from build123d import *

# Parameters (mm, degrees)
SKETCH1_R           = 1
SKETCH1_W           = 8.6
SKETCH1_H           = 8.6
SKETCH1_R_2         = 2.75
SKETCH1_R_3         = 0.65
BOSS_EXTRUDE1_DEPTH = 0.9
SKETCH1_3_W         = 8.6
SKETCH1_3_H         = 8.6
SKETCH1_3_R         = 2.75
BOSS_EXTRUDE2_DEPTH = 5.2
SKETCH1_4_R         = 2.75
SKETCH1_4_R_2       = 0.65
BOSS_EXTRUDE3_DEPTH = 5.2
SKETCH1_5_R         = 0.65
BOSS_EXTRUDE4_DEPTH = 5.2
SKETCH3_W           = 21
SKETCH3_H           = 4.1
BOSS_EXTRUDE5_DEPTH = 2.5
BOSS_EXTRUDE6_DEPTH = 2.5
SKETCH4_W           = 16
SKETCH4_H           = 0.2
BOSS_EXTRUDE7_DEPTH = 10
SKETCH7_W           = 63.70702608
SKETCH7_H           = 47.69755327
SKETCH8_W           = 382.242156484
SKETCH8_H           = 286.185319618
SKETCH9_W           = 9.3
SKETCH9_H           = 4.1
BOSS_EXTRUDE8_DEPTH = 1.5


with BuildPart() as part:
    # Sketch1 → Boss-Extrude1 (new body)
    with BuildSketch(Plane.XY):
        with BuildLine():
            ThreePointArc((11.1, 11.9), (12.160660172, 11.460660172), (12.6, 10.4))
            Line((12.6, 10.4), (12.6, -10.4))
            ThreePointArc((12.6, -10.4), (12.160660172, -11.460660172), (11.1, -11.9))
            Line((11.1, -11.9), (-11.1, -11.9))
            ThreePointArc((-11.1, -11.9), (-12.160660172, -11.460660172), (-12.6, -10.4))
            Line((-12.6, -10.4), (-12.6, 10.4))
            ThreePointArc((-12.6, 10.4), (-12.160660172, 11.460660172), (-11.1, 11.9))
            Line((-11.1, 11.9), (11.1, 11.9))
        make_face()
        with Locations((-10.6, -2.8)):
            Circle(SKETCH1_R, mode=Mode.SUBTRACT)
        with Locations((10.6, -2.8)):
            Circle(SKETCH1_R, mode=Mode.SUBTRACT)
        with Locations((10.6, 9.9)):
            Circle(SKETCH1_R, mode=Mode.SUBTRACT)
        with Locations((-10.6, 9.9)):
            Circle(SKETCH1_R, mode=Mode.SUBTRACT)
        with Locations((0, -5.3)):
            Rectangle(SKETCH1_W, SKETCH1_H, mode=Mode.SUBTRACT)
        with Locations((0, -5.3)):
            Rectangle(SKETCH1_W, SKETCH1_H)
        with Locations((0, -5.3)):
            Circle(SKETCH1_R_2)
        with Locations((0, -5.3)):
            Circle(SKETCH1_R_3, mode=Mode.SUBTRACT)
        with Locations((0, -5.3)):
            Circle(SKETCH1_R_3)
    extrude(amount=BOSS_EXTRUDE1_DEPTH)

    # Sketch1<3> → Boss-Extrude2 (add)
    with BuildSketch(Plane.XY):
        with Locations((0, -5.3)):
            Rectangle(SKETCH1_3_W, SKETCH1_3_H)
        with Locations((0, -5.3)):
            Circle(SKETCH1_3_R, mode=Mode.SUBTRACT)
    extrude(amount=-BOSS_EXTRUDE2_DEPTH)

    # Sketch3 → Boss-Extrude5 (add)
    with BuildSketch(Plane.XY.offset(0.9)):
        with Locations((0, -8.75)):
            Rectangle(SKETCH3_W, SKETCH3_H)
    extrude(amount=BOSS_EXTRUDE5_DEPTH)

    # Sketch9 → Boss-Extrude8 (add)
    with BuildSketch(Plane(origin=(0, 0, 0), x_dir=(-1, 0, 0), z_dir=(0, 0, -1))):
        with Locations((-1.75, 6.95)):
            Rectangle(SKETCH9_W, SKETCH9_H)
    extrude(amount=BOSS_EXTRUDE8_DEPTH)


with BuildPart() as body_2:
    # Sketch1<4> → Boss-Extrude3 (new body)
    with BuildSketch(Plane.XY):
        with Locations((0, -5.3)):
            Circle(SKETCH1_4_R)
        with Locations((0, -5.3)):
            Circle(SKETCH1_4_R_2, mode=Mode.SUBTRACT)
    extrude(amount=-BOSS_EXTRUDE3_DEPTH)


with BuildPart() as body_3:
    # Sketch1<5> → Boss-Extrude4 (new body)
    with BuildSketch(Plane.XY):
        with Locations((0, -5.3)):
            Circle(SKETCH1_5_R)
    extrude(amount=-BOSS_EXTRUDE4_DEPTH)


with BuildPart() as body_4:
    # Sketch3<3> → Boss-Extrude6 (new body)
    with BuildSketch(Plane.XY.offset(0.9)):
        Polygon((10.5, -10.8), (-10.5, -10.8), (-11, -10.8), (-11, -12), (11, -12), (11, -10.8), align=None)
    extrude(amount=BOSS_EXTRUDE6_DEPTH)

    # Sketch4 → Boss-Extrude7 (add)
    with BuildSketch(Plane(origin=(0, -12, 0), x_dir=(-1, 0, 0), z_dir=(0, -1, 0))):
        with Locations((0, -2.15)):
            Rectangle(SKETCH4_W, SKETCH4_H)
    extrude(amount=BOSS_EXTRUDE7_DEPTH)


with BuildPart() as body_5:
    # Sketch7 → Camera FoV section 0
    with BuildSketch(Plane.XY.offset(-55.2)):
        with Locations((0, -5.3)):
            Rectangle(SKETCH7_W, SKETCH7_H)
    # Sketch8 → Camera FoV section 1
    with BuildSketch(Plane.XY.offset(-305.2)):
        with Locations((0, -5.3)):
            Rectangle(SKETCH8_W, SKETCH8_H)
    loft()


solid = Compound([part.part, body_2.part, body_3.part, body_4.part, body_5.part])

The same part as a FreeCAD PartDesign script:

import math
import FreeCAD as App
import Part
import Sketcher
Q = App.Units.Quantity


def add_polygon(sketch, points):
    """Adds a closed chain of lines whose ends are joined by coincident constraints."""
    first, n = sketch.GeometryCount, len(points)
    for a, b in zip(points, points[1:] + points[:1]):
        sketch.addGeometry(Part.LineSegment(App.Vector(*a, 0), App.Vector(*b, 0)), False)
    for i in range(n):
        sketch.addConstraint(Sketcher.Constraint("Coincident", first + i, 2, first + (i + 1) % n, 1))

doc = App.newDocument("Part")
params = doc.addObject("Spreadsheet::Sheet", "Params")
for row, (alias, value) in enumerate([
    ("sketch1_diameter", "2 mm"),
    ("sketch1_radius", "1.5 mm"),
    ("sketch1_width", "22.2 mm"),
    ("sketch1_height", "20.8 mm"),
    ("pad1_length", "0.9 mm"),
    ("sketch2_diameter", "5.5 mm"),
    ("sketch2_width", "8.6 mm"),
    ("pad2_length", "5.2 mm"),
    ("sketch3_width", "21 mm"),
    ("sketch3_height", "4.1 mm"),
    ("pad3_length", "2.5 mm"),
    ("sketch4_width", "9.3 mm"),
    ("sketch4_height", "4.1 mm"),
    ("pad4_length", "1.5 mm"),
    ("sketch5_diameter", "5.5 mm"),
    ("sketch5_diameter2", "1.3 mm"),
    ("pad5_length", "5.2 mm"),
    ("sketch6_diameter", "1.3 mm"),
    ("pad6_length", "5.2 mm"),
    ("sketch7_width", "22 mm"),
    ("sketch7_height", "1.2 mm"),
    ("pad7_length", "2.5 mm"),
    ("sketch8_width", "16 mm"),
    ("sketch8_height", "0.2 mm"),
    ("pad8_length", "10 mm"),
], start=1):
    params.set(f"A{row}", alias)
    params.set(f"B{row}", "=" + value)
    params.setAlias(f"B{row}", alias)

body = doc.addObject("PartDesign::Body", "Body")

# Sketch on XY plane
sketch1 = body.newObject("Sketcher::SketchObject", "Sketch")
sketch1.AttachmentSupport = (doc.getObject("XY_Plane"), [""])
sketch1.MapMode = "FlatFace"
sketch1.addGeometry([
    Part.ArcOfCircle(Part.Circle(App.Vector(11.1, 10.4, 0), App.Vector(0, 0, 1), 1.5), math.radians(0), math.radians(90)),  # 0
    Part.LineSegment(App.Vector(11.1, 11.9, 0), App.Vector(-11.1, 11.9, 0)),  # 1
    Part.ArcOfCircle(Part.Circle(App.Vector(-11.1, 10.4, 0), App.Vector(0, 0, 1), 1.5), math.radians(90), math.radians(180)),  # 2
    Part.LineSegment(App.Vector(-12.6, 10.4, 0), App.Vector(-12.6, -10.4, 0)),  # 3
    Part.ArcOfCircle(Part.Circle(App.Vector(-11.1, -10.4, 0), App.Vector(0, 0, 1), 1.5), math.radians(180), math.radians(270)),  # 4
    Part.LineSegment(App.Vector(-11.1, -11.9, 0), App.Vector(11.1, -11.9, 0)),  # 5
    Part.ArcOfCircle(Part.Circle(App.Vector(11.1, -10.4, 0), App.Vector(0, 0, 1), 1.5), math.radians(-90), math.radians(0)),  # 6
    Part.LineSegment(App.Vector(12.6, -10.4, 0), App.Vector(12.6, 10.4, 0)),  # 7
    Part.Circle(App.Vector(10.6, -2.8, 0), App.Vector(0, 0, 1), 1),  # 8
    Part.Circle(App.Vector(-10.6, -2.8, 0), App.Vector(0, 0, 1), 1),  # 9
    Part.Circle(App.Vector(10.6, 9.9, 0), App.Vector(0, 0, 1), 1),  # 10
    Part.Circle(App.Vector(-10.6, 9.9, 0), App.Vector(0, 0, 1), 1),  # 11
], False)
sketch1.addConstraint([
    Sketcher.Constraint("Tangent", 0, 2, 1, 1),
    Sketcher.Constraint("Tangent", 1, 2, 2, 1),
    Sketcher.Constraint("Tangent", 2, 2, 3, 1),
    Sketcher.Constraint("Tangent", 3, 2, 4, 1),
    Sketcher.Constraint("Tangent", 4, 2, 5, 1),
    Sketcher.Constraint("Tangent", 5, 2, 6, 1),
    Sketcher.Constraint("Tangent", 6, 2, 7, 1),
    Sketcher.Constraint("Tangent", 7, 2, 0, 1),
    Sketcher.Constraint("Horizontal", 1),
    Sketcher.Constraint("Vertical", 3),
    Sketcher.Constraint("Horizontal", 5),
    Sketcher.Constraint("Vertical", 7),
    Sketcher.Constraint("Equal", 0, 2),
    Sketcher.Constraint("Equal", 2, 4),
    Sketcher.Constraint("Equal", 4, 6),
    Sketcher.Constraint("Equal", 8, 9),
    Sketcher.Constraint("Equal", 9, 10),
    Sketcher.Constraint("Equal", 10, 11),
    Sketcher.Constraint("Symmetric", 0, 3, 4, 3, -1, 1),
    Sketcher.Constraint("Symmetric", 8, 3, 9, 3, -2),
    Sketcher.Constraint("Symmetric", 10, 3, 11, 3, -2),
    Sketcher.Constraint("Vertical", 8, 3, 10, 3),
    Sketcher.Constraint("Diameter", 8, Q("2 mm")),
    Sketcher.Constraint("Radius", 0, Q("1.5 mm")),
    Sketcher.Constraint("DistanceX", 1, 2, 1, 1, Q("22.2 mm")),
    Sketcher.Constraint("DistanceY", 3, 2, 3, 1, Q("20.8 mm")),
    Sketcher.Constraint("DistanceY", 10, 3, 0, 2, Q("2 mm")),
    Sketcher.Constraint("DistanceX", 2, 2, 11, 3, Q("2 mm")),
    Sketcher.Constraint("DistanceY", 8, 3, -1, 1, Q("2.8 mm")),
])
sketch1.setExpression("Constraints[22]", "Params.sketch1_diameter")
sketch1.setExpression("Constraints[23]", "Params.sketch1_radius")
sketch1.setExpression("Constraints[24]", "Params.sketch1_width")
sketch1.setExpression("Constraints[25]", "Params.sketch1_height")
pad1 = body.newObject("PartDesign::Pad", "Pad")
pad1.Profile = sketch1
pad1.setExpression("Length", "Params.pad1_length")

# Sketch on XY plane
sketch2 = body.newObject("Sketcher::SketchObject", "Sketch001")
sketch2.AttachmentSupport = (doc.getObject("XY_Plane"), [""])
sketch2.MapMode = "FlatFace"
add_polygon(sketch2, [(-4.3, -1), (-4.3, -9.6), (4.3, -9.6), (4.3, -1)])  # lines 0-3
sketch2.addGeometry(Part.Circle(App.Vector(0, -5.3, 0), App.Vector(0, 0, 1), 2.8), False)  # 4
sketch2.addConstraint([
    Sketcher.Constraint("Vertical", 0),
    Sketcher.Constraint("Horizontal", 1),
    Sketcher.Constraint("Vertical", 2),
    Sketcher.Constraint("Horizontal", 3),
    Sketcher.Constraint("PointOnObject", 4, 3, -2),
    Sketcher.Constraint("Equal", 3, 0),
    Sketcher.Constraint("Diameter", 4, Q("5.5 mm")),
    Sketcher.Constraint("DistanceX", 1, 1, 1, 2, Q("8.6 mm")),
    Sketcher.Constraint("DistanceY", 2, 2, -1, 1, Q("1 mm")),
    Sketcher.Constraint("DistanceY", 4, 3, -1, 1, Q("5.3 mm")),
    Sketcher.Constraint("DistanceX", 0, 2, -1, 1, Q("4.3 mm")),
])
sketch2.setExpression("Constraints[10]", "Params.sketch2_diameter")
sketch2.setExpression("Constraints[11]", "Params.sketch2_width")
pad2 = body.newObject("PartDesign::Pad", "Pad001")
pad2.Profile = sketch2
pad2.setExpression("Length", "Params.pad2_length")
pad2.Reversed = True

# Sketch on XY plane
sketch3 = body.newObject("Sketcher::SketchObject", "Sketch002")
sketch3.AttachmentSupport = (doc.getObject("XY_Plane"), [""])
sketch3.MapMode = "FlatFace"
sketch3.AttachmentOffset = App.Placement(App.Vector(0, 0, 0.9), App.Rotation())
add_polygon(sketch3, [(-10.5, -6.7), (-10.5, -10.8), (10.5, -10.8), (10.5, -6.7)])  # lines 0-3
sketch3.addConstraint([
    Sketcher.Constraint("Vertical", 0),
    Sketcher.Constraint("Horizontal", 1),
    Sketcher.Constraint("Vertical", 2),
    Sketcher.Constraint("Horizontal", 3),
    Sketcher.Constraint("DistanceX", 1, 1, 1, 2, Q("21 mm")),
    Sketcher.Constraint("DistanceY", 0, 2, 0, 1, Q("4.1 mm")),
    Sketcher.Constraint("DistanceX", 0, 2, -1, 1, Q("10.5 mm")),
    Sketcher.Constraint("DistanceY", 0, 2, -1, 1, Q("10.8 mm")),
])
sketch3.setExpression("Constraints[8]", "Params.sketch3_width")
sketch3.setExpression("Constraints[9]", "Params.sketch3_height")
pad3 = body.newObject("PartDesign::Pad", "Pad002")
pad3.Profile = sketch3
pad3.setExpression("Length", "Params.pad3_length")

# Sketch on XY plane
sketch4 = body.newObject("Sketcher::SketchObject", "Sketch003")
sketch4.AttachmentSupport = (doc.getObject("XY_Plane"), [""])
sketch4.MapMode = "FlatFace"
add_polygon(sketch4, [(6.4, 9), (6.4, 4.9), (-2.9, 4.9), (-2.9, 9)])  # lines 0-3
sketch4.addConstraint([
    Sketcher.Constraint("Vertical", 0),
    Sketcher.Constraint("Horizontal", 1),
    Sketcher.Constraint("Vertical", 2),
    Sketcher.Constraint("Horizontal", 3),
    Sketcher.Constraint("DistanceX", 1, 2, 1, 1, Q("9.3 mm")),
    Sketcher.Constraint("DistanceY", 0, 2, 0, 1, Q("4.1 mm")),
    Sketcher.Constraint("DistanceY", -1, 1, 2, 2, Q("9 mm")),
    Sketcher.Constraint("DistanceX", -1, 1, 0, 2, Q("6.4 mm")),
])
sketch4.setExpression("Constraints[8]", "Params.sketch4_width")
sketch4.setExpression("Constraints[9]", "Params.sketch4_height")
pad4 = body.newObject("PartDesign::Pad", "Pad003")
pad4.Profile = sketch4
pad4.setExpression("Length", "Params.pad4_length")
pad4.Reversed = True
body2 = doc.addObject("PartDesign::Body", "Body001")

# Sketch on XY plane
sketch5 = body2.newObject("Sketcher::SketchObject", "Sketch004")
sketch5.AttachmentSupport = (doc.getObject("XY_Plane001"), [""])
sketch5.MapMode = "FlatFace"
sketch5.addGeometry([
    Part.Circle(App.Vector(0, -5.3, 0), App.Vector(0, 0, 1), 2.8),
    Part.Circle(App.Vector(0, -5.3, 0), App.Vector(0, 0, 1), 0.7),
], False)
sketch5.addConstraint([
    Sketcher.Constraint("Coincident", 1, 3, 0, 3),
    Sketcher.Constraint("PointOnObject", 0, 3, -2),
    Sketcher.Constraint("Diameter", 0, Q("5.5 mm")),
    Sketcher.Constraint("Diameter", 1, Q("1.3 mm")),
    Sketcher.Constraint("DistanceY", 0, 3, -1, 1, Q("5.3 mm")),
])
sketch5.setExpression("Constraints[2]", "Params.sketch5_diameter")
sketch5.setExpression("Constraints[3]", "Params.sketch5_diameter2")
pad5 = body2.newObject("PartDesign::Pad", "Pad004")
pad5.Profile = sketch5
pad5.setExpression("Length", "Params.pad5_length")
pad5.Reversed = True
body3 = doc.addObject("PartDesign::Body", "Body002")

# Sketch on XY plane
sketch6 = body3.newObject("Sketcher::SketchObject", "Sketch005")
sketch6.AttachmentSupport = (doc.getObject("XY_Plane002"), [""])
sketch6.MapMode = "FlatFace"
sketch6.addGeometry(Part.Circle(App.Vector(0, -5.3, 0), App.Vector(0, 0, 1), 0.7), False)
sketch6.addConstraint([
    Sketcher.Constraint("PointOnObject", 0, 3, -2),
    Sketcher.Constraint("Diameter", 0, Q("1.3 mm")),
    Sketcher.Constraint("DistanceY", 0, 3, -1, 1, Q("5.3 mm")),
])
sketch6.setExpression("Constraints[1]", "Params.sketch6_diameter")
pad6 = body3.newObject("PartDesign::Pad", "Pad005")
pad6.Profile = sketch6
pad6.setExpression("Length", "Params.pad6_length")
pad6.Reversed = True
body4 = doc.addObject("PartDesign::Body", "Body003")

# Sketch on XY plane
sketch7 = body4.newObject("Sketcher::SketchObject", "Sketch006")
sketch7.AttachmentSupport = (doc.getObject("XY_Plane003"), [""])
sketch7.MapMode = "FlatFace"
sketch7.AttachmentOffset = App.Placement(App.Vector(0, 0, 0.9), App.Rotation())
add_polygon(sketch7, [(-11, -10.8), (-11, -12), (11, -12), (11, -10.8)])  # lines 0-3
sketch7.addConstraint([
    Sketcher.Constraint("Vertical", 0),
    Sketcher.Constraint("Horizontal", 1),
    Sketcher.Constraint("Vertical", 2),
    Sketcher.Constraint("Horizontal", 3),
    Sketcher.Constraint("DistanceX", 1, 1, 1, 2, Q("22 mm")),
    Sketcher.Constraint("DistanceY", 0, 2, 0, 1, Q("1.2 mm")),
    Sketcher.Constraint("DistanceX", 0, 2, -1, 1, Q("11 mm")),
    Sketcher.Constraint("DistanceY", 0, 2, -1, 1, Q("12 mm")),
])
sketch7.setExpression("Constraints[8]", "Params.sketch7_width")
sketch7.setExpression("Constraints[9]", "Params.sketch7_height")
pad7 = body4.newObject("PartDesign::Pad", "Pad006")
pad7.Profile = sketch7
pad7.setExpression("Length", "Params.pad7_length")

# Sketch on XZ plane
sketch8 = body4.newObject("Sketcher::SketchObject", "Sketch007")
sketch8.AttachmentSupport = (doc.getObject("XZ_Plane003"), [""])
sketch8.MapMode = "FlatFace"
sketch8.AttachmentOffset = App.Placement(App.Vector(0, 0, 12), App.Rotation())
add_polygon(sketch8, [(8, 2.05), (8, 2.25), (-8, 2.25), (-8, 2.05)])  # lines 0-3
sketch8.addConstraint([
    Sketcher.Constraint("Vertical", 0),
    Sketcher.Constraint("Horizontal", 1),
    Sketcher.Constraint("Vertical", 2),
    Sketcher.Constraint("Horizontal", 3),
    Sketcher.Constraint("DistanceX", 1, 2, 1, 1, Q("16 mm")),
    Sketcher.Constraint("DistanceY", 0, 1, 0, 2, Q("0.2 mm")),
    Sketcher.Constraint("DistanceX", -1, 1, 0, 2, Q("8 mm")),
    Sketcher.Constraint("DistanceY", -1, 1, 0, 2, Q("2.25 mm")),
])
sketch8.setExpression("Constraints[8]", "Params.sketch8_width")
sketch8.setExpression("Constraints[9]", "Params.sketch8_height")
pad8 = body4.newObject("PartDesign::Pad", "Pad007")
pad8.Profile = sketch8
pad8.setExpression("Length", "Params.pad8_length")
body5 = doc.addObject("PartDesign::Body", "Body004")

# Sketch on XY plane
sketch9 = body5.newObject("Sketcher::SketchObject", "Sketch008")
sketch9.AttachmentSupport = (doc.getObject("XY_Plane004"), [""])
sketch9.MapMode = "FlatFace"
sketch9.AttachmentOffset = App.Placement(App.Vector(0, 0, -55.2), App.Rotation())
add_polygon(sketch9, [(-32, 19), (-32, -29), (32, -29), (32, 19)])  # lines 0-3
sketch9.addConstraint([
    Sketcher.Constraint("Vertical", 0),
    Sketcher.Constraint("Horizontal", 1),
    Sketcher.Constraint("Vertical", 2),
    Sketcher.Constraint("Horizontal", 3),
    Sketcher.Constraint("DistanceX", 1, 1, 1, 2, Q("63.707026 mm")),
    Sketcher.Constraint("DistanceY", 0, 2, 0, 1, Q("47.697553 mm")),
    Sketcher.Constraint("DistanceX", 0, 2, -1, 1, Q("31.853513 mm")),
    Sketcher.Constraint("DistanceY", 0, 2, -1, 1, Q("29.148777 mm")),
])

# Sketch on XY plane
sketch10 = body5.newObject("Sketcher::SketchObject", "Sketch009")
sketch10.AttachmentSupport = (doc.getObject("XY_Plane004"), [""])
sketch10.MapMode = "FlatFace"
sketch10.AttachmentOffset = App.Placement(App.Vector(0, 0, -305.2), App.Rotation())
add_polygon(sketch10, [(-191, 138), (-191, -148), (191, -148), (191, 138)])  # lines 0-3
sketch10.addConstraint([
    Sketcher.Constraint("Vertical", 0),
    Sketcher.Constraint("Horizontal", 1),
    Sketcher.Constraint("Vertical", 2),
    Sketcher.Constraint("Horizontal", 3),
    Sketcher.Constraint("DistanceY", 0, 2, 0, 1, Q("286.18532 mm")),
    Sketcher.Constraint("DistanceX", 1, 1, 1, 2, Q("382.242156 mm")),
    Sketcher.Constraint("DistanceX", 0, 2, -1, 1, Q("191.121078 mm")),
    Sketcher.Constraint("DistanceY", 0, 2, -1, 1, Q("148.39266 mm")),
])

additiveloft = body5.newObject("PartDesign::AdditiveLoft", "AdditiveLoft")
additiveloft.Profile = sketch9
additiveloft.Sections = [sketch10]

doc.recompute()
